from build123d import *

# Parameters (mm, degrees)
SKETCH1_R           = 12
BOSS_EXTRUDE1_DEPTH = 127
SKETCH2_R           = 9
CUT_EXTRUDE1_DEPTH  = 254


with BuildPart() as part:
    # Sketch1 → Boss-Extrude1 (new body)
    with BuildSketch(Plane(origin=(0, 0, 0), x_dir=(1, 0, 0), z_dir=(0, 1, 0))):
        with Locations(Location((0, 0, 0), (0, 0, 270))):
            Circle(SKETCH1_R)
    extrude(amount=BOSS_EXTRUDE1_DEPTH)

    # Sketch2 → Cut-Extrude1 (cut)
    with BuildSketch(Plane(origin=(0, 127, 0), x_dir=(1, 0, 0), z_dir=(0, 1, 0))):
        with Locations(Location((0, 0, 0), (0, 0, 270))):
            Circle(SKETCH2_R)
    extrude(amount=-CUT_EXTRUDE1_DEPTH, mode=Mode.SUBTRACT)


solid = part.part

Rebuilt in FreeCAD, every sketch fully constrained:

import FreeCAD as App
import Part
import Sketcher

V = App.Vector
Q = App.Units.Quantity

doc = App.newDocument("Part")
body = doc.addObject("PartDesign::Body", "Body")

sketch1 = body.newObject("Sketcher::SketchObject", "Sketch")
sketch1.AttachmentSupport = (doc.getObject("XZ_Plane"), [""])
sketch1.MapMode = "FlatFace"
sketch1.addGeometry(Part.Circle(V(0, 0, 0), V(0, 0, 1), 12), False)
sketch1.addConstraint(Sketcher.Constraint("Coincident", 0, 3, -1, 1))
sketch1.addConstraint(Sketcher.Constraint("Diameter", 0, Q("24 mm")))
pad1 = body.newObject("PartDesign::Pad", "Pad")
pad1.Profile = sketch1
pad1.Length = 127
pad1.Reversed = True

sketch2 = body.newObject("Sketcher::SketchObject", "Sketch001")
sketch2.AttachmentSupport = (doc.getObject("XZ_Plane"), [""])
sketch2.MapMode = "FlatFace"
sketch2.AttachmentOffset = App.Placement(V(0, 0, -127), App.Rotation())
sketch2.addGeometry(Part.Circle(V(0, 0, 0), V(0, 0, 1), 9), False)
sketch2.addConstraint(Sketcher.Constraint("Coincident", 0, 3, -1, 1))
sketch2.addConstraint(Sketcher.Constraint("Diameter", 0, Q("18 mm")))
pocket1 = body.newObject("PartDesign::Pocket", "Pocket")
pocket1.Profile = sketch2
pocket1.Length = 254
pocket1.Reversed = True

doc.recompute()
